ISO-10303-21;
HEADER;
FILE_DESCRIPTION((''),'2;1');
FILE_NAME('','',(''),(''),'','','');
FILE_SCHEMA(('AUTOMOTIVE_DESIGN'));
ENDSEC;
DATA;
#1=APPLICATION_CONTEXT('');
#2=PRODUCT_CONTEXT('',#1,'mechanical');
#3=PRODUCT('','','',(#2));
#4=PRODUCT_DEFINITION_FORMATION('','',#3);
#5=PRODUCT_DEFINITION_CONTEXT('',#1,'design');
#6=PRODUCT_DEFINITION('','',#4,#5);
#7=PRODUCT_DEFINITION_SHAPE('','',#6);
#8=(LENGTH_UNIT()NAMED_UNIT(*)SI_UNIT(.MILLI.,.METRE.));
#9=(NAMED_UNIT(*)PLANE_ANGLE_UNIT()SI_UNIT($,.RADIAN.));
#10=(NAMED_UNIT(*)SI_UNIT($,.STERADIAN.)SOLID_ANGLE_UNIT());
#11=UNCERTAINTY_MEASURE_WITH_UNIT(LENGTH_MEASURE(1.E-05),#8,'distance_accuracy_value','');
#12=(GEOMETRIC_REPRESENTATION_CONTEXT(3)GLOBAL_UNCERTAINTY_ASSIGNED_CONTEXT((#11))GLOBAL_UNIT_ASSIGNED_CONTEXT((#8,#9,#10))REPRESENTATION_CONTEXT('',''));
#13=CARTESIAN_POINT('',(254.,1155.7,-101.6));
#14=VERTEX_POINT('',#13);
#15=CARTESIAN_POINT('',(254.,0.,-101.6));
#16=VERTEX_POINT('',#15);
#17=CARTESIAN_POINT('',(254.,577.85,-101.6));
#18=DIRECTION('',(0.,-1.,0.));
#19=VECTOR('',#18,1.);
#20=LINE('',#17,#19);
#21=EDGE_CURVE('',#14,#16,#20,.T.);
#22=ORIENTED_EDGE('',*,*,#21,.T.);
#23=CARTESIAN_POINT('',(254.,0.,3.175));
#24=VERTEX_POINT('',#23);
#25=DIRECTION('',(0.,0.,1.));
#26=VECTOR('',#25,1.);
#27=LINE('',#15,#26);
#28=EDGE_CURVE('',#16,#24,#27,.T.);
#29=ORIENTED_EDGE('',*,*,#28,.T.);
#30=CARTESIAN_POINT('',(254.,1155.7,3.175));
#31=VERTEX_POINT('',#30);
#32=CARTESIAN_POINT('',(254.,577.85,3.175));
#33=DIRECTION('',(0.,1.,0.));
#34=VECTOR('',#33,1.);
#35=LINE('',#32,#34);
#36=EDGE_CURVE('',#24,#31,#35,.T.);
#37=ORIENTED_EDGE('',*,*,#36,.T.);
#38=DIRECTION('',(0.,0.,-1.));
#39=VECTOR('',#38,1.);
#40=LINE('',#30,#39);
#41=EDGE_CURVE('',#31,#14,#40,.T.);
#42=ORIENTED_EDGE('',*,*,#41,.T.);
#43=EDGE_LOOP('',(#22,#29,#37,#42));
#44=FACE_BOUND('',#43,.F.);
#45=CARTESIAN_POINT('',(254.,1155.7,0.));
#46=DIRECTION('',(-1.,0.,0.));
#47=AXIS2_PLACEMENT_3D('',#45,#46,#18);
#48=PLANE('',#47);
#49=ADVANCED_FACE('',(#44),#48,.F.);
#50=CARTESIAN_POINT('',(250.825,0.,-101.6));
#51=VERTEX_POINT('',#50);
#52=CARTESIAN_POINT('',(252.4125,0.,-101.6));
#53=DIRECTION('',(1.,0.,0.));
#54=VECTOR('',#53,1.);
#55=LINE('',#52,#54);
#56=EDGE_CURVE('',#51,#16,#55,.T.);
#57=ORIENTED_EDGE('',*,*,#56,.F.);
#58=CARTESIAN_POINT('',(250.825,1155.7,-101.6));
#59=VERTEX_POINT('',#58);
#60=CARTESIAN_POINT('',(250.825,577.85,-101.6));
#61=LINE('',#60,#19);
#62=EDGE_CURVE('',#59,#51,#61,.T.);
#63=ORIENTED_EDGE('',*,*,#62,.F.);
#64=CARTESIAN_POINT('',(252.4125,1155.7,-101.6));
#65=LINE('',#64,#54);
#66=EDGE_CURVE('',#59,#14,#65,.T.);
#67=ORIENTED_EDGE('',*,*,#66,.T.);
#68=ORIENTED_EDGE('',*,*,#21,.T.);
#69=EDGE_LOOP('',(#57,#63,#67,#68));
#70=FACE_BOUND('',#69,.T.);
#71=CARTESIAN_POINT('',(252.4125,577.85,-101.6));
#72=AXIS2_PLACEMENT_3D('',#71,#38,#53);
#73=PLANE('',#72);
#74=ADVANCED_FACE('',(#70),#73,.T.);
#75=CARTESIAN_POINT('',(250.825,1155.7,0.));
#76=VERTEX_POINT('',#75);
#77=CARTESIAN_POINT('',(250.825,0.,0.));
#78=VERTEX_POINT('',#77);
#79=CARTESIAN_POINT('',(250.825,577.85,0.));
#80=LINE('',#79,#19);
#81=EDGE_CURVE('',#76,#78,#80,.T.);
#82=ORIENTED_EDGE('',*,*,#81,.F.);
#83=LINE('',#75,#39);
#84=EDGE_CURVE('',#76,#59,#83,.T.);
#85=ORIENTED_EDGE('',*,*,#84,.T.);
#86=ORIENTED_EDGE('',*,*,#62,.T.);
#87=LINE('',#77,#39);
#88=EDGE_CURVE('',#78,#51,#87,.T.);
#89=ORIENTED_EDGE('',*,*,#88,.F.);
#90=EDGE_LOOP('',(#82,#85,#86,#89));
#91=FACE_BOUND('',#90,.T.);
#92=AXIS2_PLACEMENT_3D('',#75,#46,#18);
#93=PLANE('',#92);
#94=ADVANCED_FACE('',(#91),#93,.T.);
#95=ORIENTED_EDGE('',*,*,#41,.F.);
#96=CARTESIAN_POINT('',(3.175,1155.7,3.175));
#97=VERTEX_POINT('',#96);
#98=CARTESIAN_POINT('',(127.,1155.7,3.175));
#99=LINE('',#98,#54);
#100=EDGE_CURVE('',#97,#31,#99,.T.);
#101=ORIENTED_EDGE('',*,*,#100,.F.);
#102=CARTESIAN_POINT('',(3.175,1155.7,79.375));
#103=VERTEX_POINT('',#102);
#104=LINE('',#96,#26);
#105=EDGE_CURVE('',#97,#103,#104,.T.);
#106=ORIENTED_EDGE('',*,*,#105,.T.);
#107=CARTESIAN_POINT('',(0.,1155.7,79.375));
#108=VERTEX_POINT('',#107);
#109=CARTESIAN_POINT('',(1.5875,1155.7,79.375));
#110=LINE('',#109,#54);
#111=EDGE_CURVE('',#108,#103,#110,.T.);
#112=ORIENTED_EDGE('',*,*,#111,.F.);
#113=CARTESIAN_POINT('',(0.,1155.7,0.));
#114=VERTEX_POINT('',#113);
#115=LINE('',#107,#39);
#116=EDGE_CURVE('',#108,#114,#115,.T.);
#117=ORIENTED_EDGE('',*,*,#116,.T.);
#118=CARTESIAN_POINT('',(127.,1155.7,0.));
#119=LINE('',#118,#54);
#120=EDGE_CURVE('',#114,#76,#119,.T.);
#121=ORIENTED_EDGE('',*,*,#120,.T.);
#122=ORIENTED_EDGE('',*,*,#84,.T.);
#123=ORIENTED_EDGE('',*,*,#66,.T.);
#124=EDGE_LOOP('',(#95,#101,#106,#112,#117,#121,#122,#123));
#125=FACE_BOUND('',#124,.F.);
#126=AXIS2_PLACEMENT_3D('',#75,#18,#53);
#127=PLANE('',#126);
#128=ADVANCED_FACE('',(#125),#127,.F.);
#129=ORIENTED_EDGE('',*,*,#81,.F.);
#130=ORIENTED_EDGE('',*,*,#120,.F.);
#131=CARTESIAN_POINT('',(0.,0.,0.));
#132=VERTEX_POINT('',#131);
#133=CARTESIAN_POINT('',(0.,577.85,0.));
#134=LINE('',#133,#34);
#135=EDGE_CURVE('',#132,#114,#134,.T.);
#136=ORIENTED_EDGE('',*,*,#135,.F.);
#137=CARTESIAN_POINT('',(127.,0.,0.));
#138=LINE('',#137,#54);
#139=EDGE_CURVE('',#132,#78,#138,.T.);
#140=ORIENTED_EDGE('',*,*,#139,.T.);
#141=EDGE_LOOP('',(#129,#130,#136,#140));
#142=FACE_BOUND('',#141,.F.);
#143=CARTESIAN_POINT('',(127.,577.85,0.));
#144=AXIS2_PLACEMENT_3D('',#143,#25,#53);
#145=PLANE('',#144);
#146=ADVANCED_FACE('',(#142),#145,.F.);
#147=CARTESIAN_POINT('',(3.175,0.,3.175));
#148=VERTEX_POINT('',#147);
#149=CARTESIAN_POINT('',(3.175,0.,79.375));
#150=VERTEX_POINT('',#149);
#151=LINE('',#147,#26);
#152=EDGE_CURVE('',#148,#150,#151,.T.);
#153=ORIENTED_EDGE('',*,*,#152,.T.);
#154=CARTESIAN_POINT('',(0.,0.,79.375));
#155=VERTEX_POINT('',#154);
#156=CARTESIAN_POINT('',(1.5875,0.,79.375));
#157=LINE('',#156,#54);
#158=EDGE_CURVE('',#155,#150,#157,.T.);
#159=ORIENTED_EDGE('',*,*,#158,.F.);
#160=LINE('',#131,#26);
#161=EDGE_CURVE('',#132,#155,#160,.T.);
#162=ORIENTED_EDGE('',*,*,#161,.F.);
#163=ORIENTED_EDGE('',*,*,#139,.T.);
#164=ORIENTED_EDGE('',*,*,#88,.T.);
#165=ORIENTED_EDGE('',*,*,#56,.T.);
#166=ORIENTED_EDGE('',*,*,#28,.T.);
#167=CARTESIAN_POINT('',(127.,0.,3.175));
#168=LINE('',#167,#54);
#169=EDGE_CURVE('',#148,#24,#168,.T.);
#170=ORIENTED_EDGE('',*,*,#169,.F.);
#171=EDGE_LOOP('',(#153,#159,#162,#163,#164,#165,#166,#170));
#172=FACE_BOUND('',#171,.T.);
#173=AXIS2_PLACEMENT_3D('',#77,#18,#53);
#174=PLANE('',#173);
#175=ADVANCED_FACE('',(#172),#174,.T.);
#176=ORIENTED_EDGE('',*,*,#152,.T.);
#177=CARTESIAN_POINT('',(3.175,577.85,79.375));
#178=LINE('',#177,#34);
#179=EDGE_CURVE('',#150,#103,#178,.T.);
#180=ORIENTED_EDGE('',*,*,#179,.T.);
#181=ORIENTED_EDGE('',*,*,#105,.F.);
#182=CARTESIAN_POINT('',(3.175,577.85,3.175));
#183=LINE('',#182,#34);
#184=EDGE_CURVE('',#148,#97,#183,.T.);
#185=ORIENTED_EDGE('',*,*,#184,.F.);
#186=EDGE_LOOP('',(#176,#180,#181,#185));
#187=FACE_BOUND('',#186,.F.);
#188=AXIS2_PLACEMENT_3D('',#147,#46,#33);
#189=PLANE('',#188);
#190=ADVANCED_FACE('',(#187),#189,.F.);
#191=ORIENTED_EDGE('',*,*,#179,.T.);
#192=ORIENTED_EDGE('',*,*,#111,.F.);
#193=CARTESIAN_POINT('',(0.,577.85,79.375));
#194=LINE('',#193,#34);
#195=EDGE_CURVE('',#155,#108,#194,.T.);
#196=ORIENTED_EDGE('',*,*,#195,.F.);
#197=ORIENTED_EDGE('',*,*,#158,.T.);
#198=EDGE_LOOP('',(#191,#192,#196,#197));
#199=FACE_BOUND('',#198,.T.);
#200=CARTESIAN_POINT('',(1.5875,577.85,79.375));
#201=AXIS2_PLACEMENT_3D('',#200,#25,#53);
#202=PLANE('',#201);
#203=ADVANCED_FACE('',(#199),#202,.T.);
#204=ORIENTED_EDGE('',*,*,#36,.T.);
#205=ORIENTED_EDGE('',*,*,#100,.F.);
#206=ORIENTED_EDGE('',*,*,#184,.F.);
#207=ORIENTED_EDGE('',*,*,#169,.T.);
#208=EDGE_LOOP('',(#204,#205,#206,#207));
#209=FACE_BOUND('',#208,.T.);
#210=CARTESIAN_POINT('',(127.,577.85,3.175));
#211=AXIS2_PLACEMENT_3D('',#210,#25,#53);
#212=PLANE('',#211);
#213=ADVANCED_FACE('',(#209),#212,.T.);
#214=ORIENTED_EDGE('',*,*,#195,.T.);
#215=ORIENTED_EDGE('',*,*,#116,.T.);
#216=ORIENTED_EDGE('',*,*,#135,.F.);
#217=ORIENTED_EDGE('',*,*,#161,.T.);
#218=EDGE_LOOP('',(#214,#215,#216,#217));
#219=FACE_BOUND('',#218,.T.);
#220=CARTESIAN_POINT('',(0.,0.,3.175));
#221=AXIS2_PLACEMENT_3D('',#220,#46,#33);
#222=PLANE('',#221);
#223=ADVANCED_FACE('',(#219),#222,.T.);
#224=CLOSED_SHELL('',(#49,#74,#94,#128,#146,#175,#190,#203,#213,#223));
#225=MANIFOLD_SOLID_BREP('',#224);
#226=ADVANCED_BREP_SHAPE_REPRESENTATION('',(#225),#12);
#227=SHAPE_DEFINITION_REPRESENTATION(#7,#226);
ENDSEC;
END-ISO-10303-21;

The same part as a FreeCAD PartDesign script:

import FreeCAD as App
import Part
import Sketcher
from FreeCAD import Vector
Q = App.Units.Quantity


def add_polygon(sketch, points):
    """Adds a closed chain of lines whose ends are joined by coincident constraints."""
    first, n = sketch.GeometryCount, len(points)
    for a, b in zip(points, points[1:] + points[:1]):
        sketch.addGeometry(Part.LineSegment(App.Vector(*a, 0), App.Vector(*b, 0)), False)
    for i in range(n):
        sketch.addConstraint(Sketcher.Constraint("Coincident", first + i, 2, first + (i + 1) % n, 1))

doc = App.newDocument("Part")
params = doc.addObject("Spreadsheet::Sheet", "Params")
for row, (alias, value) in enumerate([
    ("sketch1_width", "10 in"),
    ("sketch1_height", "45.5 in"),
    ("pad1_length", "0.125 in"),
    ("sketch2_height", "45.5 in"),
    ("sketch2_width", "0.125 in"),
    ("pad2_length", "3 in"),
    ("sketch3_height", "45.5 in"),
    ("sketch3_width", "0.125 in"),
    ("pad3_length", "4 in"),
], start=1):
    params.set(f"A{row}", alias)
    params.set(f"B{row}", "=" + value)
    params.setAlias(f"B{row}", alias)

body = doc.addObject("PartDesign::Body", "Body")

# Sketch on XY plane
sketch1 = body.newObject("Sketcher::SketchObject", "Sketch")
sketch1.AttachmentSupport = (doc.getObject("XY_Plane"), [""])
sketch1.MapMode = "FlatFace"
add_polygon(sketch1, [(0, 1155.7), (0, 0), (254, 0), (254, 1155.7)])  # lines 0-3
sketch1.addConstraint([
    Sketcher.Constraint("Vertical", 0),
    Sketcher.Constraint("Horizontal", 1),
    Sketcher.Constraint("Vertical", 2),
    Sketcher.Constraint("Horizontal", 3),
    Sketcher.Constraint("Coincident", 0, 2, -1, 1),
    Sketcher.Constraint("DistanceX", 1, 1, 1, 2, Q("10 in")),
    Sketcher.Constraint("DistanceY", 0, 2, 0, 1, Q("45.5 in")),
])
sketch1.setExpression("Constraints[9]", "Params.sketch1_width")
sketch1.setExpression("Constraints[10]", "Params.sketch1_height")
pad1 = body.newObject("PartDesign::Pad", "Pad")
pad1.Profile = sketch1
pad1.setExpression("Length", "Params.pad1_length")

# Sketch on XY plane
sketch2 = body.newObject("Sketcher::SketchObject", "Sketch001")
sketch2.AttachmentSupport = (doc.getObject("XY_Plane"), [""])
sketch2.MapMode = "FlatFace"
sketch2.AttachmentOffset = App.Placement(Vector(0, 0, 0.125 * 25.4), App.Rotation())
add_polygon(sketch2, [(0, 1155.7), (0, 0), (3.175, 0), (3.175, 1155.7)])  # lines 0-3
sketch2.addConstraint([
    Sketcher.Constraint("Vertical", 0),
    Sketcher.Constraint("Horizontal", 1),
    Sketcher.Constraint("Vertical", 2),
    Sketcher.Constraint("Horizontal", 3),
    Sketcher.Constraint("Coincident", 0, 2, -1, 1),
    Sketcher.Constraint("DistanceY", 0, 2, 0, 1, Q("45.5 in")),
    Sketcher.Constraint("DistanceX", 1, 1, 1, 2, Q("0.125 in")),
])
sketch2.setExpression("Constraints[9]", "Params.sketch2_height")
sketch2.setExpression("Constraints[10]", "Params.sketch2_width")
pad2 = body.newObject("PartDesign::Pad", "Pad001")
pad2.Profile = sketch2
pad2.setExpression("Length", "Params.pad2_length")

# Sketch on XY plane
sketch3 = body.newObject("Sketcher::SketchObject", "Sketch002")
sketch3.AttachmentSupport = (doc.getObject("XY_Plane"), [""])
sketch3.MapMode = "FlatFace"
add_polygon(sketch3, [(250.825, 0), (250.825, 1155.7), (254, 1155.7), (254, 0)])  # lines 0-3
sketch3.addConstraint([
    Sketcher.Constraint("Vertical", 0),
    Sketcher.Constraint("Horizontal", 1),
    Sketcher.Constraint("Vertical", 2),
    Sketcher.Constraint("Horizontal", 3),
    Sketcher.Constraint("PointOnObject", 2, 2, -1),
    Sketcher.Constraint("DistanceY", 0, 1, 0, 2, Q("45.5 in")),
    Sketcher.Constraint("DistanceX", -1, 1, 1, 2, Q("10 in")),
    Sketcher.Constraint("DistanceX", 1, 1, 1, 2, Q("0.125 in")),
])
sketch3.setExpression("Constraints[9]", "Params.sketch3_height")
sketch3.setExpression("Constraints[11]", "Params.sketch3_width")
pad3 = body.newObject("PartDesign::Pad", "Pad002")
pad3.Profile = sketch3
pad3.setExpression("Length", "Params.pad3_length")
pad3.Reversed = True

doc.recompute()
